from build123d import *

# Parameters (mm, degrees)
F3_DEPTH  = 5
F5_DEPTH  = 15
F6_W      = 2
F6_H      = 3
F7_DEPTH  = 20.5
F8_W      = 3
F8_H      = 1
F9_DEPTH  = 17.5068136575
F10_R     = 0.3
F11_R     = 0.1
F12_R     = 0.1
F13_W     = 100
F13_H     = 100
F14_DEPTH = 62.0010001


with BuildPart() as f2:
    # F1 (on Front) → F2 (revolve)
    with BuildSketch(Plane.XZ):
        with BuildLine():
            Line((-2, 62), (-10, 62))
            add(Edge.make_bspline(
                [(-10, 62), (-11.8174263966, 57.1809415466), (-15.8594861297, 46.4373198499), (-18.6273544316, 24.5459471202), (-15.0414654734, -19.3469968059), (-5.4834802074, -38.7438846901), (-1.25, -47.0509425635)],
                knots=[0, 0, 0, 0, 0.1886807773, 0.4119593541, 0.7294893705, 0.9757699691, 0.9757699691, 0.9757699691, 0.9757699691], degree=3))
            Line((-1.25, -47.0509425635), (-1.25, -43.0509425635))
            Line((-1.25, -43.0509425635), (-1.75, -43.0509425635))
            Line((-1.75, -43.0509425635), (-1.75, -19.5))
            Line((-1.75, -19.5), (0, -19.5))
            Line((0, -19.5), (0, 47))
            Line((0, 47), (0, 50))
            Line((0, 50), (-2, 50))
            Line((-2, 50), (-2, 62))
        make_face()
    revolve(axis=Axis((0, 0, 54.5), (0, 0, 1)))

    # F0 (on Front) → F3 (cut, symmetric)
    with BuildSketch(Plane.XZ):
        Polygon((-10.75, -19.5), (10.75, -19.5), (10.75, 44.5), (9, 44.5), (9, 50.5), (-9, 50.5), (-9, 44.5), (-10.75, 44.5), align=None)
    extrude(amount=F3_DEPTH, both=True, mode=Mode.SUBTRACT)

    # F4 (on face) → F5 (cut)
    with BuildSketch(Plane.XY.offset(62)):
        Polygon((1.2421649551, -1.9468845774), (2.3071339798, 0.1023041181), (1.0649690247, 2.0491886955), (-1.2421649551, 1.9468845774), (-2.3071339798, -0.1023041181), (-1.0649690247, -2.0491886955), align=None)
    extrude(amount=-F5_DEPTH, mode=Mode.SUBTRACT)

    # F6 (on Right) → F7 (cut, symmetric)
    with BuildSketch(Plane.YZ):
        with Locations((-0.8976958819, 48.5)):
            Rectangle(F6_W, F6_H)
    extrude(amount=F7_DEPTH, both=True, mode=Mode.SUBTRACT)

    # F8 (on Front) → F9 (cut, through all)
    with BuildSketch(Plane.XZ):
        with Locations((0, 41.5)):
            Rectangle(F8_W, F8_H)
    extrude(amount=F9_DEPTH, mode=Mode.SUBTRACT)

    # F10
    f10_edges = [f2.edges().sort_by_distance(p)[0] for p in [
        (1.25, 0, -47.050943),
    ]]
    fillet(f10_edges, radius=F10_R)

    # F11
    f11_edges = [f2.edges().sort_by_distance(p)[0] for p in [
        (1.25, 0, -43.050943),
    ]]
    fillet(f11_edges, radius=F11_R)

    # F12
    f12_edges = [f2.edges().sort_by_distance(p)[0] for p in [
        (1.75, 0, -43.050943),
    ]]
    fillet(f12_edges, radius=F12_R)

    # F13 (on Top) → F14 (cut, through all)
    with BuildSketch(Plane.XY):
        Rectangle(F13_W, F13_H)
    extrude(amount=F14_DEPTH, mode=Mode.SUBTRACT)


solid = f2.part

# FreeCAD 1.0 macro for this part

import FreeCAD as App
import Part
import Sketcher
from FreeCAD import Vector


def edges_at(feature, points):
    """Names of the edges that pass closest to the given points."""
    edges = feature.Shape.Edges
    near = lambda p: min(range(len(edges)), key=lambda i: edges[i].distToShape(Part.Vertex(*p))[0])
    return sorted({f"Edge{near(p) + 1}" for p in points})

doc = App.newDocument("Part")
body = doc.addObject("PartDesign::Body", "Body")

sketch1 = doc.addObject("Sketcher::SketchObject", "Sketch")
body.addObject(sketch1)
sketch1.AttachmentSupport = (doc.XZ_Plane, [""])
sketch1.MapMode = "FlatFace"
sketch1.addGeometry(Part.LineSegment(Vector(-2, 62, 0), Vector(-10, 62, 0)), False)
sketch1.addGeometry(Part.BSplineCurve([Vector(-10, 62, 0), Vector(-11.817426, 57.180942, 0), Vector(-15.859486, 46.43732, 0), Vector(-18.627354, 24.545947, 0), Vector(-15.041465, -19.346997, 0), Vector(-5.48348, -38.743885, 0), Vector(-1.25, -47.050943, 0)], [4, 1, 1, 1, 4], [0, 0.188680777, 0.411959354, 0.72948937, 0.975769969], False, 3, [1, 1, 1, 1, 1, 1, 1], False), False)
sketch1.addGeometry(Part.LineSegment(Vector(-1.25, -47.050943, 0), Vector(-1.25, -43.050943, 0)), False)
sketch1.addGeometry(Part.LineSegment(Vector(-1.25, -43.050943, 0), Vector(-1.75, -43.050943, 0)), False)
sketch1.addGeometry(Part.LineSegment(Vector(-1.75, -43.050943, 0), Vector(-1.75, -19.5, 0)), False)
sketch1.addGeometry(Part.LineSegment(Vector(-1.75, -19.5, 0), Vector(0, -19.5, 0)), False)
sketch1.addGeometry(Part.LineSegment(Vector(0, -19.5, 0), Vector(0, 50, 0)), False)
sketch1.addGeometry(Part.LineSegment(Vector(0, 50, 0), Vector(-2, 50, 0)), False)
sketch1.addGeometry(Part.LineSegment(Vector(-2, 50, 0), Vector(-2, 62, 0)), False)
sketch1.addConstraint(Sketcher.Constraint("Block", 1))
sketch1.addConstraint(Sketcher.Constraint("Coincident", 0, 2, 1, 1))
sketch1.addConstraint(Sketcher.Constraint("Coincident", 1, 2, 2, 1))
sketch1.addConstraint(Sketcher.Constraint("Coincident", 2, 2, 3, 1))
sketch1.addConstraint(Sketcher.Constraint("Coincident", 3, 2, 4, 1))
sketch1.addConstraint(Sketcher.Constraint("Coincident", 4, 2, 5, 1))
sketch1.addConstraint(Sketcher.Constraint("Coincident", 5, 2, 6, 1))
sketch1.addConstraint(Sketcher.Constraint("Coincident", 6, 2, 7, 1))
sketch1.addConstraint(Sketcher.Constraint("Coincident", 7, 2, 8, 1))
sketch1.addConstraint(Sketcher.Constraint("Coincident", 8, 2, 0, 1))
sketch1.addConstraint(Sketcher.Constraint("Horizontal", 0))
sketch1.addConstraint(Sketcher.Constraint("Vertical", 2))
sketch1.addConstraint(Sketcher.Constraint("Horizontal", 3))
sketch1.addConstraint(Sketcher.Constraint("Vertical", 4))
sketch1.addConstraint(Sketcher.Constraint("Horizontal", 5))
sketch1.addConstraint(Sketcher.Constraint("Vertical", 6))
sketch1.addConstraint(Sketcher.Constraint("Horizontal", 7))
sketch1.addConstraint(Sketcher.Constraint("Vertical", 8))
sketch1.addConstraint(Sketcher.Constraint("PointOnObject", 5, 2, -2))
sketch1.addConstraint(Sketcher.Constraint("DistanceX", 0, 2, 0, 1, 8.0))
sketch1.addConstraint(Sketcher.Constraint("DistanceY", 2, 1, 2, 2, 4.0))
sketch1.addConstraint(Sketcher.Constraint("DistanceY", 8, 1, 8, 2, 12.0))
sketch1.addConstraint(Sketcher.Constraint("DistanceX", 3, 2, 3, 1, 0.5))
sketch1.addConstraint(Sketcher.Constraint("DistanceY", 6, 1, 6, 2, 69.5))
revolution = doc.addObject("PartDesign::Revolution", "Revolution")
body.addObject(revolution)
revolution.Profile = sketch1
revolution.ReferenceAxis = (sketch1, ["V_Axis"])
revolution.Angle = 360

sketch2 = doc.addObject("Sketcher::SketchObject", "Sketch001")
body.addObject(sketch2)
sketch2.AttachmentSupport = (doc.XZ_Plane, [""])
sketch2.MapMode = "FlatFace"
sketch2.addGeometry(Part.LineSegment(Vector(-10.75, -19.5, 0), Vector(10.75, -19.5, 0)), False)
sketch2.addGeometry(Part.LineSegment(Vector(10.75, -19.5, 0), Vector(10.75, 44.5, 0)), False)
sketch2.addGeometry(Part.LineSegment(Vector(10.75, 44.5, 0), Vector(9, 44.5, 0)), False)
sketch2.addGeometry(Part.LineSegment(Vector(9, 44.5, 0), Vector(9, 50.5, 0)), False)
sketch2.addGeometry(Part.LineSegment(Vector(9, 50.5, 0), Vector(-9, 50.5, 0)), False)
sketch2.addGeometry(Part.LineSegment(Vector(-9, 50.5, 0), Vector(-9, 44.5, 0)), False)
sketch2.addGeometry(Part.LineSegment(Vector(-9, 44.5, 0), Vector(-10.75, 44.5, 0)), False)
sketch2.addGeometry(Part.LineSegment(Vector(-10.75, 44.5, 0), Vector(-10.75, -19.5, 0)), False)
sketch2.addConstraint(Sketcher.Constraint("Coincident", 0, 2, 1, 1))
sketch2.addConstraint(Sketcher.Constraint("Coincident", 1, 2, 2, 1))
sketch2.addConstraint(Sketcher.Constraint("Coincident", 2, 2, 3, 1))
sketch2.addConstraint(Sketcher.Constraint("Coincident", 3, 2, 4, 1))
sketch2.addConstraint(Sketcher.Constraint("Coincident", 4, 2, 5, 1))
sketch2.addConstraint(Sketcher.Constraint("Coincident", 5, 2, 6, 1))
sketch2.addConstraint(Sketcher.Constraint("Coincident", 6, 2, 7, 1))
sketch2.addConstraint(Sketcher.Constraint("Coincident", 7, 2, 0, 1))
sketch2.addConstraint(Sketcher.Constraint("Horizontal", 0))
sketch2.addConstraint(Sketcher.Constraint("Vertical", 1))
sketch2.addConstraint(Sketcher.Constraint("Horizontal", 2))
sketch2.addConstraint(Sketcher.Constraint("Vertical", 3))
sketch2.addConstraint(Sketcher.Constraint("Horizontal", 4))
sketch2.addConstraint(Sketcher.Constraint("Vertical", 5))
sketch2.addConstraint(Sketcher.Constraint("Horizontal", 6))
sketch2.addConstraint(Sketcher.Constraint("Vertical", 7))
sketch2.addConstraint(Sketcher.Constraint("Symmetric", 2, 2, 5, 2, -2))
sketch2.addConstraint(Sketcher.Constraint("Equal", 2, 6))
sketch2.addConstraint(Sketcher.Constraint("DistanceX", 4, 2, 4, 1, 18.0))
sketch2.addConstraint(Sketcher.Constraint("DistanceY", 1, 1, 1, 2, 64.0))
sketch2.addConstraint(Sketcher.Constraint("DistanceY", 3, 1, 3, 2, 6.0))
sketch2.addConstraint(Sketcher.Constraint("DistanceX", 0, 1, 0, 2, 21.5))
sketch2.addConstraint(Sketcher.Constraint("DistanceY", 0, 2, -1, 1, 19.5))
pocket1 = doc.addObject("PartDesign::Pocket", "Pocket")
body.addObject(pocket1)
pocket1.Profile = sketch2
pocket1.Length = 10
pocket1.Midplane = True

sketch3 = doc.addObject("Sketcher::SketchObject", "Sketch002")
body.addObject(sketch3)
sketch3.AttachmentSupport = (doc.XY_Plane, [""])
sketch3.MapMode = "FlatFace"
sketch3.AttachmentOffset = App.Placement(Vector(0, 0, 62), App.Rotation())
sketch3.addGeometry(Part.LineSegment(Vector(1.242165, -1.946885, 0), Vector(2.307134, 0.102304, 0)), False)
sketch3.addGeometry(Part.LineSegment(Vector(2.307134, 0.102304, 0), Vector(1.064969, 2.049189, 0)), False)
sketch3.addGeometry(Part.LineSegment(Vector(1.064969, 2.049189, 0), Vector(-1.242165, 1.946885, 0)), False)
sketch3.addGeometry(Part.LineSegment(Vector(-1.242165, 1.946885, 0), Vector(-2.307134, -0.102304, 0)), False)
sketch3.addGeometry(Part.LineSegment(Vector(-2.307134, -0.102304, 0), Vector(-1.064969, -2.049189, 0)), False)
sketch3.addGeometry(Part.LineSegment(Vector(-1.064969, -2.049189, 0), Vector(1.242165, -1.946885, 0)), False)
sketch3.addConstraint(Sketcher.Constraint("Coincident", 0, 2, 1, 1))
sketch3.addConstraint(Sketcher.Constraint("Coincident", 1, 2, 2, 1))
sketch3.addConstraint(Sketcher.Constraint("Coincident", 2, 2, 3, 1))
sketch3.addConstraint(Sketcher.Constraint("Coincident", 3, 2, 4, 1))
sketch3.addConstraint(Sketcher.Constraint("Coincident", 4, 2, 5, 1))
sketch3.addConstraint(Sketcher.Constraint("Coincident", 5, 2, 0, 1))
sketch3.addConstraint(Sketcher.Constraint("Symmetric", 0, 2, 3, 2, -1, 1))
sketch3.addConstraint(Sketcher.Constraint("Symmetric", 1, 2, 4, 2, -1, 1))
sketch3.addConstraint(Sketcher.Constraint("Symmetric", 2, 2, 5, 2, -1, 1))
sketch3.addConstraint(Sketcher.Constraint("Equal", 0, 1))
sketch3.addConstraint(Sketcher.Constraint("Equal", 1, 2))
sketch3.addConstraint(Sketcher.Constraint("Distance", 0, 2.309401))
sketch3.addConstraint(Sketcher.Constraint("DistanceX", 2, 2, 0, 2, 3.549299))
sketch3.addConstraint(Sketcher.Constraint("DistanceX", -1, 1, 1, 2, 1.064969))
sketch3.addConstraint(Sketcher.Constraint("DistanceY", -1, 1, 1, 2, 2.049189))
pocket2 = doc.addObject("PartDesign::Pocket", "Pocket001")
body.addObject(pocket2)
pocket2.Profile = sketch3
pocket2.Length = 15

sketch4 = doc.addObject("Sketcher::SketchObject", "Sketch003")
body.addObject(sketch4)
sketch4.AttachmentSupport = (doc.YZ_Plane, [""])
sketch4.MapMode = "FlatFace"
sketch4.addGeometry(Part.LineSegment(Vector(-1.897696, 50, 0), Vector(-1.897696, 47, 0)), False)
sketch4.addGeometry(Part.LineSegment(Vector(-1.897696, 47, 0), Vector(0.102304, 47, 0)), False)
sketch4.addGeometry(Part.LineSegment(Vector(0.102304, 47, 0), Vector(0.102304, 50, 0)), False)
sketch4.addGeometry(Part.LineSegment(Vector(0.102304, 50, 0), Vector(-1.897696, 50, 0)), False)
sketch4.addConstraint(Sketcher.Constraint("Coincident", 0, 2, 1, 1))
sketch4.addConstraint(Sketcher.Constraint("Coincident", 1, 2, 2, 1))
sketch4.addConstraint(Sketcher.Constraint("Coincident", 2, 2, 3, 1))
sketch4.addConstraint(Sketcher.Constraint("Coincident", 3, 2, 0, 1))
sketch4.addConstraint(Sketcher.Constraint("Vertical", 0))
sketch4.addConstraint(Sketcher.Constraint("Horizontal", 1))
sketch4.addConstraint(Sketcher.Constraint("Vertical", 2))
sketch4.addConstraint(Sketcher.Constraint("Horizontal", 3))
sketch4.addConstraint(Sketcher.Constraint("DistanceX", 1, 1, 1, 2, 2.0))
sketch4.addConstraint(Sketcher.Constraint("DistanceY", 0, 2, 0, 1, 3.0))
sketch4.addConstraint(Sketcher.Constraint("DistanceY", -1, 1, 0, 2, 47.0))
sketch4.addConstraint(Sketcher.Constraint("DistanceX", 0, 2, -1, 1, 1.897696))
pocket3 = doc.addObject("PartDesign::Pocket", "Pocket002")
body.addObject(pocket3)
pocket3.Profile = sketch4
pocket3.Length = 41
pocket3.Midplane = True

sketch5 = doc.addObject("Sketcher::SketchObject", "Sketch004")
body.addObject(sketch5)
sketch5.AttachmentSupport = (doc.XZ_Plane, [""])
sketch5.MapMode = "FlatFace"
sketch5.addGeometry(Part.LineSegment(Vector(-1.5, 42, 0), Vector(-1.5, 41, 0)), False)
sketch5.addGeometry(Part.LineSegment(Vector(-1.5, 41, 0), Vector(1.5, 41, 0)), False)
sketch5.addGeometry(Part.LineSegment(Vector(1.5, 41, 0), Vector(1.5, 42, 0)), False)
sketch5.addGeometry(Part.LineSegment(Vector(1.5, 42, 0), Vector(-1.5, 42, 0)), False)
sketch5.addConstraint(Sketcher.Constraint("Coincident", 0, 2, 1, 1))
sketch5.addConstraint(Sketcher.Constraint("Coincident", 1, 2, 2, 1))
sketch5.addConstraint(Sketcher.Constraint("Coincident", 2, 2, 3, 1))
sketch5.addConstraint(Sketcher.Constraint("Coincident", 3, 2, 0, 1))
sketch5.addConstraint(Sketcher.Constraint("Vertical", 0))
sketch5.addConstraint(Sketcher.Constraint("Horizontal", 1))
sketch5.addConstraint(Sketcher.Constraint("Vertical", 2))
sketch5.addConstraint(Sketcher.Constraint("Horizontal", 3))
sketch5.addConstraint(Sketcher.Constraint("DistanceX", 1, 1, 1, 2, 3.0))
sketch5.addConstraint(Sketcher.Constraint("DistanceY", 0, 2, 0, 1, 1.0))
sketch5.addConstraint(Sketcher.Constraint("DistanceY", -1, 1, 0, 2, 41.0))
sketch5.addConstraint(Sketcher.Constraint("DistanceX", 0, 2, -1, 1, 1.5))
pocket4 = doc.addObject("PartDesign::Pocket", "Pocket003")
body.addObject(pocket4)
pocket4.Profile = sketch5
pocket4.Type = "ThroughAll"
pocket4.Reversed = True
doc.recompute()

fillet = doc.addObject("PartDesign::Fillet", "Fillet")
body.addObject(fillet)
fillet.Base = (pocket4, edges_at(pocket4, [(1.25, 0, -47.051)]))
fillet.Radius = 0.3
doc.recompute()

fillet2 = doc.addObject("PartDesign::Fillet", "Fillet001")
body.addObject(fillet2)
fillet2.Base = (fillet, edges_at(fillet, [(1.25, 0, -43.051)]))
fillet2.Radius = 0.1
doc.recompute()

fillet3 = doc.addObject("PartDesign::Fillet", "Fillet002")
body.addObject(fillet3)
fillet3.Base = (fillet2, edges_at(fillet2, [(1.75, 0, -43.051)]))
fillet3.Radius = 0.1

sketch6 = doc.addObject("Sketcher::SketchObject", "Sketch005")
body.addObject(sketch6)
sketch6.AttachmentSupport = (doc.XY_Plane, [""])
sketch6.MapMode = "FlatFace"
sketch6.addGeometry(Part.LineSegment(Vector(-50, 50, 0), Vector(-50, -50, 0)), False)
sketch6.addGeometry(Part.LineSegment(Vector(-50, -50, 0), Vector(50, -50, 0)), False)
sketch6.addGeometry(Part.LineSegment(Vector(50, -50, 0), Vector(50, 50, 0)), False)
sketch6.addGeometry(Part.LineSegment(Vector(50, 50, 0), Vector(-50, 50, 0)), False)
sketch6.addConstraint(Sketcher.Constraint("Coincident", 0, 2, 1, 1))
sketch6.addConstraint(Sketcher.Constraint("Coincident", 1, 2, 2, 1))
sketch6.addConstraint(Sketcher.Constraint("Coincident", 2, 2, 3, 1))
sketch6.addConstraint(Sketcher.Constraint("Coincident", 3, 2, 0, 1))
sketch6.addConstraint(Sketcher.Constraint("Vertical", 0))
sketch6.addConstraint(Sketcher.Constraint("Horizontal", 1))
sketch6.addConstraint(Sketcher.Constraint("Vertical", 2))
sketch6.addConstraint(Sketcher.Constraint("Horizontal", 3))
sketch6.addConstraint(Sketcher.Constraint("Symmetric", 0, 2, 2, 2, -1, 1))
sketch6.addConstraint(Sketcher.Constraint("Equal", 3, 0))
sketch6.addConstraint(Sketcher.Constraint("DistanceX", 1, 1, 1, 2, 100.0))
pocket5 = doc.addObject("PartDesign::Pocket", "Pocket004")
body.addObject(pocket5)
pocket5.Profile = sketch6
pocket5.Type = "ThroughAll"
pocket5.Reversed = True

doc.recompute()
